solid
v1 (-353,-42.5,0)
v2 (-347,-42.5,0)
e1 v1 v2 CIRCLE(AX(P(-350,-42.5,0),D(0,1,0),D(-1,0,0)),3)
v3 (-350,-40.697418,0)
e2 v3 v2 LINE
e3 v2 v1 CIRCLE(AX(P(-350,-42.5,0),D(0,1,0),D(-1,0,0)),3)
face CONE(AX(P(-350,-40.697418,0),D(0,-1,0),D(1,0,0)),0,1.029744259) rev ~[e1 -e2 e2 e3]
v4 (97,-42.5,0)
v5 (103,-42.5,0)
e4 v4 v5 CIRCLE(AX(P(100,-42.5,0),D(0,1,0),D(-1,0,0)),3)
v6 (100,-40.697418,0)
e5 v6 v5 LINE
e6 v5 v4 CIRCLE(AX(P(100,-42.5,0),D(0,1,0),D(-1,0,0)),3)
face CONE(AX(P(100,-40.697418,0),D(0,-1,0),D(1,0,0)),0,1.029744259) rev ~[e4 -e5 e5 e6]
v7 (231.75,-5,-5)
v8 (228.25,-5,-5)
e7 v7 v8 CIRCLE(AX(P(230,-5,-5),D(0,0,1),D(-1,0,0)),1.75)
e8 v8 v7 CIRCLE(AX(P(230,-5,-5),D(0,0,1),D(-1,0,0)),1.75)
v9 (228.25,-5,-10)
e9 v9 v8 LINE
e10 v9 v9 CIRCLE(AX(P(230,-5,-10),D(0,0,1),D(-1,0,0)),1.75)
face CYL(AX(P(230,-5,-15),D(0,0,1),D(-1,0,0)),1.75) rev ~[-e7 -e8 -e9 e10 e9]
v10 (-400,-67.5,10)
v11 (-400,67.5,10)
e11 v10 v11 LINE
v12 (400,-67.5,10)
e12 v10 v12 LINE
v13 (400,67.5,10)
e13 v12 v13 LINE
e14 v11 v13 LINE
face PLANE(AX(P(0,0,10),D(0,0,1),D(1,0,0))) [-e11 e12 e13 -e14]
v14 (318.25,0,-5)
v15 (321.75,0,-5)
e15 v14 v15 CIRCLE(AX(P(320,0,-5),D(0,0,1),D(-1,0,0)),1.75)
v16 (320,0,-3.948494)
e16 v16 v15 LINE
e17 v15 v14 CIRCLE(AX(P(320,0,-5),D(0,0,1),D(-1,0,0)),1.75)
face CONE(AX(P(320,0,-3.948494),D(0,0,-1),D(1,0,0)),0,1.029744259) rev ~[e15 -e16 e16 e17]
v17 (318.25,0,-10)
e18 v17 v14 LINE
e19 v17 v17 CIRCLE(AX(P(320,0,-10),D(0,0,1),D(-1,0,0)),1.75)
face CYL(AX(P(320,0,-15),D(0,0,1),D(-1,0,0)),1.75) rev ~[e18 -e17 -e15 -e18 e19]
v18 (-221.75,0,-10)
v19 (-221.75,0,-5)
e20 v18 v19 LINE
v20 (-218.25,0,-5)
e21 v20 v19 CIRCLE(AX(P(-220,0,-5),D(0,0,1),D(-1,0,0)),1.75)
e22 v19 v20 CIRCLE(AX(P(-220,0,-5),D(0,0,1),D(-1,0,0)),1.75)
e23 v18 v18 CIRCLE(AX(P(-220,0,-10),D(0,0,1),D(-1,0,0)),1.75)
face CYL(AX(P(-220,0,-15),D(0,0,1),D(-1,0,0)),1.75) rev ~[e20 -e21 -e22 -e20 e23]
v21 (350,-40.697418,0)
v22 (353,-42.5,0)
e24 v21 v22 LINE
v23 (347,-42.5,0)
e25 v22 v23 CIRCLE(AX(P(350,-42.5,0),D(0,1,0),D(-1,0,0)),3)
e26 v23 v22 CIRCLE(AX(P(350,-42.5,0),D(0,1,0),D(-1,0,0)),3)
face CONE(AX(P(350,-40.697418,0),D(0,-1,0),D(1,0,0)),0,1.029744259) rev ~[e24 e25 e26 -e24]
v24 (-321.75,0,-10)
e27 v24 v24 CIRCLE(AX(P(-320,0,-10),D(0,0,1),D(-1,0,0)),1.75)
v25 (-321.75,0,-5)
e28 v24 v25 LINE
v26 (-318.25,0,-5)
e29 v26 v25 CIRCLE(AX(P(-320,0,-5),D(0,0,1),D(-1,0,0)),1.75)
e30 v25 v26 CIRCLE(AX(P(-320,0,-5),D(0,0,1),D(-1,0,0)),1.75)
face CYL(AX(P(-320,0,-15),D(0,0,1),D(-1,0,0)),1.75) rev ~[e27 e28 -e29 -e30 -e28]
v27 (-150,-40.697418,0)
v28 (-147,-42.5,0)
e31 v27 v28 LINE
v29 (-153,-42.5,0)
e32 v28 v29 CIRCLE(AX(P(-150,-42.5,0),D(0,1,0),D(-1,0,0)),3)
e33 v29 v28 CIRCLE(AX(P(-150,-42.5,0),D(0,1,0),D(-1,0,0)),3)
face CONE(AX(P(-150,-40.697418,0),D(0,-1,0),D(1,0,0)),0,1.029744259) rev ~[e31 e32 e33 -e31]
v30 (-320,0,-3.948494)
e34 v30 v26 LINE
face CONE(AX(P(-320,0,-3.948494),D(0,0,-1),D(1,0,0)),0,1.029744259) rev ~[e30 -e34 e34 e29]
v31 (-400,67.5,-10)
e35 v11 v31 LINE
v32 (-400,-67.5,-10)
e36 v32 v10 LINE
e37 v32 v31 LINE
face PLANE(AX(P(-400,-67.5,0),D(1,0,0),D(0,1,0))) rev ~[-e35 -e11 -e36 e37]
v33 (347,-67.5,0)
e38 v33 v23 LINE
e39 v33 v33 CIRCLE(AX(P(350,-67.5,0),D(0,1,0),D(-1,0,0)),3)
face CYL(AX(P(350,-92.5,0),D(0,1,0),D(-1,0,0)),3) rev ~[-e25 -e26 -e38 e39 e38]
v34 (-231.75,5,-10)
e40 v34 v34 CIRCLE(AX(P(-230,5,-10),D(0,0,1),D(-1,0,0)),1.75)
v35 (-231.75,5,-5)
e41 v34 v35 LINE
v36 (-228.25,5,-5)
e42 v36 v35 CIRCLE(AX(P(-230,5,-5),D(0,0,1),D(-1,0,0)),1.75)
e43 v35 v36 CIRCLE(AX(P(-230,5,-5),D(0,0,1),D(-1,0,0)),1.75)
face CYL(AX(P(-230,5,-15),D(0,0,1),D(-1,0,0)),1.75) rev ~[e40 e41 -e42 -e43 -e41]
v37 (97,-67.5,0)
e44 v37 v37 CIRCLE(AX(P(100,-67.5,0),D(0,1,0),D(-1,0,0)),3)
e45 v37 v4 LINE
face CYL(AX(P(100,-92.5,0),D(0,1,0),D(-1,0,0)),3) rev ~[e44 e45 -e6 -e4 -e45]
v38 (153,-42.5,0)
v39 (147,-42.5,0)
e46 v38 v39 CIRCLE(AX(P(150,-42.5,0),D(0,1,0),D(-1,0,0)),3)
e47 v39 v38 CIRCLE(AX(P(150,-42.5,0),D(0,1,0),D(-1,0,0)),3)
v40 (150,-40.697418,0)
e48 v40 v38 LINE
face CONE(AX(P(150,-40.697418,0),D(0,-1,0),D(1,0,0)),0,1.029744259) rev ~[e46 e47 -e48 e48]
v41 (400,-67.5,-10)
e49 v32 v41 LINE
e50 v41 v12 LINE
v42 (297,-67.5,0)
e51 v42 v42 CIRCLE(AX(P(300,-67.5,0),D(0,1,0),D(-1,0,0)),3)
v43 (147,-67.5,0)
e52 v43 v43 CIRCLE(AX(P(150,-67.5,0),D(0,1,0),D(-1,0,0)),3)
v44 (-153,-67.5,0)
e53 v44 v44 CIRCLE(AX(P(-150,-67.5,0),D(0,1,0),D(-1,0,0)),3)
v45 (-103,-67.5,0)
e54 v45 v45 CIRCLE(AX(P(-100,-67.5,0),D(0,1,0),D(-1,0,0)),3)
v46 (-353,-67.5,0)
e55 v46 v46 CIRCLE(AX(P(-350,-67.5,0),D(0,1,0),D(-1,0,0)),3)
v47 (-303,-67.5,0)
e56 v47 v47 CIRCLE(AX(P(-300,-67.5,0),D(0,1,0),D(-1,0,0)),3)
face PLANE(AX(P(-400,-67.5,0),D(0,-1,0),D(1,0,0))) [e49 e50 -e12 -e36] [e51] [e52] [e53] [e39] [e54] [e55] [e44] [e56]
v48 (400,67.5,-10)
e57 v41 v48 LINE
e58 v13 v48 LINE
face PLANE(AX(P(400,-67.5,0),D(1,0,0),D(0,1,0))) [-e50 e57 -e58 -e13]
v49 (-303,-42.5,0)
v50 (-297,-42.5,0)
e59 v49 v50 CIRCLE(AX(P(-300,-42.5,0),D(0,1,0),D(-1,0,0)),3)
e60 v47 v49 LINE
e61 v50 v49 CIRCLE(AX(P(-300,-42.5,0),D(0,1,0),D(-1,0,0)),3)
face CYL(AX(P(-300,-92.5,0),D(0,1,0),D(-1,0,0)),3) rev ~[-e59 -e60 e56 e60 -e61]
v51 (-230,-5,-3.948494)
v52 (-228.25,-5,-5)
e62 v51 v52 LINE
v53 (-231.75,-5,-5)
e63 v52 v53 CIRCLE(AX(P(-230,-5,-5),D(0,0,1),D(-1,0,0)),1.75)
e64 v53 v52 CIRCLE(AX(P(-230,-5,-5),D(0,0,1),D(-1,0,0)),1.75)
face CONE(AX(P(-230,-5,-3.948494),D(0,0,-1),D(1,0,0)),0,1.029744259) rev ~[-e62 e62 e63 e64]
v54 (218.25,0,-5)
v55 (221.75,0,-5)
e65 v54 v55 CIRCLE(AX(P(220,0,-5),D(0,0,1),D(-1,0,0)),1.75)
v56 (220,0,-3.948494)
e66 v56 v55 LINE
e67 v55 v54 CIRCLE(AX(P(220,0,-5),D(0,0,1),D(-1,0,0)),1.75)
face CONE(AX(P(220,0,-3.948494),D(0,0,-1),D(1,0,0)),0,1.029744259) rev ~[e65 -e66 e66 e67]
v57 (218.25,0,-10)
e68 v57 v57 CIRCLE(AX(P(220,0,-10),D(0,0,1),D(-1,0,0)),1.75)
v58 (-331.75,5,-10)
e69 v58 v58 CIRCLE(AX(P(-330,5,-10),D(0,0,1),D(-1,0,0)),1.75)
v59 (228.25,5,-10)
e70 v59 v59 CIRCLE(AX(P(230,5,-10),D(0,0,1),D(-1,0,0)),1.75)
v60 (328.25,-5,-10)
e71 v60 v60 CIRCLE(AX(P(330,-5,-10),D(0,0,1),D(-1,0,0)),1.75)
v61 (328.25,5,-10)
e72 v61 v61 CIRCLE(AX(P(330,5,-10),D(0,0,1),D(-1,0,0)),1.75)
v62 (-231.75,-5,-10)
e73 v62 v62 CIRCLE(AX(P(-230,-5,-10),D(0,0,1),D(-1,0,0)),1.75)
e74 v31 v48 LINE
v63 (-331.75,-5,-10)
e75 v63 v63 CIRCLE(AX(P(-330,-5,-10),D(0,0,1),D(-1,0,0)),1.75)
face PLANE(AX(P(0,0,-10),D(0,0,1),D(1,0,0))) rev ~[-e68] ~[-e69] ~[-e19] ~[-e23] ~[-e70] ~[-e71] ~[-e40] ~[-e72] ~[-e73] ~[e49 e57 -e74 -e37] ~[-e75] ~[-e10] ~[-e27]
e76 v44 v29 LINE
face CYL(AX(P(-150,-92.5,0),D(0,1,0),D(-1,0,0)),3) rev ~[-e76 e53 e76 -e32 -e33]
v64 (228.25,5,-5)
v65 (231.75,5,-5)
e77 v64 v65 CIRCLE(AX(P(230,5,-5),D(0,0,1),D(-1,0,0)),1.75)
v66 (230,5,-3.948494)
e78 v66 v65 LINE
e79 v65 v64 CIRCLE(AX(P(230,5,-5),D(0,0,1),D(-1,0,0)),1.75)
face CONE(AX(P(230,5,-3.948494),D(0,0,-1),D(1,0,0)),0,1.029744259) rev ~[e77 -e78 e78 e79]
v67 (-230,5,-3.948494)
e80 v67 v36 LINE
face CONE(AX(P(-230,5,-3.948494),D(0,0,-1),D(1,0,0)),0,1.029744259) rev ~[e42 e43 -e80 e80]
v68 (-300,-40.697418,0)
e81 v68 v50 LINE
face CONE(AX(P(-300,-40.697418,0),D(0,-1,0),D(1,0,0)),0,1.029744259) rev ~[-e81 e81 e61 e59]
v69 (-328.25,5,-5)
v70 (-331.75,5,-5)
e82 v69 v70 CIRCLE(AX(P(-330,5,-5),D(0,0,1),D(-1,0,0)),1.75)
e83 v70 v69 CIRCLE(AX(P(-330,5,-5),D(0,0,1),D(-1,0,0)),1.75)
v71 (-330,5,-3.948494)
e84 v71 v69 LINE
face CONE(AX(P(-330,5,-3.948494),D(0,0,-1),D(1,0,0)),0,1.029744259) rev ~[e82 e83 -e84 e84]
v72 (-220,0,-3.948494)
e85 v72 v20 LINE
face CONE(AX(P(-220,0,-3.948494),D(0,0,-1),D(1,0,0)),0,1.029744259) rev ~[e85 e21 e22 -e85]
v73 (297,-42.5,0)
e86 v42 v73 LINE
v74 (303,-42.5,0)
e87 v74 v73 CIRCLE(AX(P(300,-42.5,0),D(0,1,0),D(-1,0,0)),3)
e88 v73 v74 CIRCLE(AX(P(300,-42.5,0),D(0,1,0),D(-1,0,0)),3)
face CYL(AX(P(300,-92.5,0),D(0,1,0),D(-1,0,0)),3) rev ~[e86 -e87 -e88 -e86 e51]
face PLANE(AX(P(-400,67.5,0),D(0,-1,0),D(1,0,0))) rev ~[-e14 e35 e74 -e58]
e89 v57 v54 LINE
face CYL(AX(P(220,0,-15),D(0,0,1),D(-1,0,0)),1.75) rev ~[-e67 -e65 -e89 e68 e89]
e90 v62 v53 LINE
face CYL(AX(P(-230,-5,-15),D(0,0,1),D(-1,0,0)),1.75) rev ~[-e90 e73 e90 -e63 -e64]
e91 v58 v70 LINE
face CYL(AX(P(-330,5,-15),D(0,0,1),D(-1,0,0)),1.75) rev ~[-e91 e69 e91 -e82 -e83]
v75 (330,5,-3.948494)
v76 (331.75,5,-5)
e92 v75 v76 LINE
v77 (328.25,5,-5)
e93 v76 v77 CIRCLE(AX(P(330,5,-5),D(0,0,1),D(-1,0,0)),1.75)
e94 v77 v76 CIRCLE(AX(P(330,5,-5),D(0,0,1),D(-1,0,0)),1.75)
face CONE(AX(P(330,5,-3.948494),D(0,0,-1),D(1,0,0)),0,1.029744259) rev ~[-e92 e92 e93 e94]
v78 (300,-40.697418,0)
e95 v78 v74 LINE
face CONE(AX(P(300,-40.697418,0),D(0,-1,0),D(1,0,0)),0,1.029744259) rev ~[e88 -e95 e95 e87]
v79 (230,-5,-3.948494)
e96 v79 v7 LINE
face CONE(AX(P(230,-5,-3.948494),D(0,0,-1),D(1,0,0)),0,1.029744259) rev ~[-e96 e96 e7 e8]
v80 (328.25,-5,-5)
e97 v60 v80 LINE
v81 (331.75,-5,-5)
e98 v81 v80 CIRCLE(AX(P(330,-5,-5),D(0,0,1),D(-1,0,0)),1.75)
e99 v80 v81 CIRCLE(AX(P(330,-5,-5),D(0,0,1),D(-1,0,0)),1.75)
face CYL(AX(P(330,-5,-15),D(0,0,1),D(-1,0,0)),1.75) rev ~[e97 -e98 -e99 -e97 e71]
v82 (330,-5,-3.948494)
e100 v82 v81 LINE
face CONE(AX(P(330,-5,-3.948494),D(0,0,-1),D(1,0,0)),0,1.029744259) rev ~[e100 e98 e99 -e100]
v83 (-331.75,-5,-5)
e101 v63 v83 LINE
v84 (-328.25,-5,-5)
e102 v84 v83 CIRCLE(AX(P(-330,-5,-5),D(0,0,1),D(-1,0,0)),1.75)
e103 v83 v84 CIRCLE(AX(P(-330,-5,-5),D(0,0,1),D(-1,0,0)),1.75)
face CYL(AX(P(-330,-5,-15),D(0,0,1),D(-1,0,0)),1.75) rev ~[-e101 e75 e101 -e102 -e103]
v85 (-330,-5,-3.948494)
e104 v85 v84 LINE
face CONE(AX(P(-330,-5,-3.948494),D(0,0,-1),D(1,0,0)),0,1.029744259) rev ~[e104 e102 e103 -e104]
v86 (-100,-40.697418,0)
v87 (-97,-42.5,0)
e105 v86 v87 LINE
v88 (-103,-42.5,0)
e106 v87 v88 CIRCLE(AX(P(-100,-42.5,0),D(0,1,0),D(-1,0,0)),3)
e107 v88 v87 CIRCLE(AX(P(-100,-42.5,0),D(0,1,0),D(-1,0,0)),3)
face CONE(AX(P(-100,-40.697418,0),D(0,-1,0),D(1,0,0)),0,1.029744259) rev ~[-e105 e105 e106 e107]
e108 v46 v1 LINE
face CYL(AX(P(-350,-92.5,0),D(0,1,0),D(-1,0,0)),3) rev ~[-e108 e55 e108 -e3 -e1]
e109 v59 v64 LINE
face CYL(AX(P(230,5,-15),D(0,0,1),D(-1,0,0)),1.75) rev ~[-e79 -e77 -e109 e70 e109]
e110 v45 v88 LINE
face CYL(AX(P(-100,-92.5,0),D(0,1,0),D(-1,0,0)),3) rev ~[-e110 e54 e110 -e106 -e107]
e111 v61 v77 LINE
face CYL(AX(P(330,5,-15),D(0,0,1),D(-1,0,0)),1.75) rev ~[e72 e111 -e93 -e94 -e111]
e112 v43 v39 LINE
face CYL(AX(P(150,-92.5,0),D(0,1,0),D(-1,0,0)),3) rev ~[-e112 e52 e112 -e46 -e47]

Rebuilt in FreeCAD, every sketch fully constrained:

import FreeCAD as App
import Part
import Sketcher

V = App.Vector
Q = App.Units.Quantity


def add_polygon(sketch, points):
    """Adds a closed chain of lines whose ends are joined by coincident constraints."""
    first, n = sketch.GeometryCount, len(points)
    for a, b in zip(points, points[1:] + points[:1]):
        sketch.addGeometry(Part.LineSegment(App.Vector(*a, 0), App.Vector(*b, 0)), False)
    for i in range(n):
        sketch.addConstraint(Sketcher.Constraint("Coincident", first + i, 2, first + (i + 1) % n, 1))

doc = App.newDocument("Part")
body = doc.addObject("PartDesign::Body", "Body")

# Sketch on XY plane
sketch1 = doc.addObject("Sketcher::SketchObject", "Sketch")
body.addObject(sketch1)
sketch1.AttachmentSupport = (doc.XY_Plane, [""])
sketch1.MapMode = "FlatFace"
add_polygon(sketch1, [(-400, 68), (-400, -68), (400, -68), (400, 68)])  # lines 0-3
sketch1.addConstraint([
    Sketcher.Constraint("Vertical", 0),
    Sketcher.Constraint("Horizontal", 1),
    Sketcher.Constraint("Vertical", 2),
    Sketcher.Constraint("Horizontal", 3),
    Sketcher.Constraint("Symmetric", 0, 2, 2, 2, -1, 1),
    Sketcher.Constraint("DistanceX", 1, 1, 1, 2, Q("800 mm")),
    Sketcher.Constraint("DistanceY", 0, 2, 0, 1, Q("135 mm")),
])
pad1 = doc.addObject("PartDesign::Pad", "Pad")
body.addObject(pad1)
pad1.Profile = sketch1
pad1.Length = 20
pad1.Midplane = True

# Sketch on XZ plane
sketch2 = doc.addObject("Sketcher::SketchObject", "Sketch001")
body.addObject(sketch2)
sketch2.AttachmentSupport = (doc.XZ_Plane, [""])
sketch2.MapMode = "FlatFace"
sketch2.AttachmentOffset = App.Placement(V(0, 0, 67.5), App.Rotation())
sketch2.addGeometry([
    Part.Circle(V(-350, 0, 0), V(0, 0, 1), 3),  # 0
    Part.Circle(V(-300, 0, 0), V(0, 0, 1), 3),  # 1
    Part.Circle(V(-150, 0, 0), V(0, 0, 1), 3),  # 2
    Part.Circle(V(-100, 0, 0), V(0, 0, 1), 3),  # 3
    Part.Circle(V(100, 0, 0), V(0, 0, 1), 3),  # 4
    Part.Circle(V(150, 0, 0), V(0, 0, 1), 3),  # 5
    Part.Circle(V(300, 0, 0), V(0, 0, 1), 3),  # 6
    Part.Circle(V(350, 0, 0), V(0, 0, 1), 3),  # 7
], False)
sketch2.addConstraint([
    Sketcher.Constraint("Equal", 0, 1),
    Sketcher.Constraint("Equal", 1, 2),
    Sketcher.Constraint("Equal", 2, 3),
    Sketcher.Constraint("Equal", 3, 4),
    Sketcher.Constraint("Equal", 4, 5),
    Sketcher.Constraint("Equal", 5, 6),
    Sketcher.Constraint("Equal", 6, 7),
    Sketcher.Constraint("Symmetric", 3, 3, 4, 3, -1, 1),
    Sketcher.Constraint("Symmetric", 2, 3, 5, 3, -1, 1),
    Sketcher.Constraint("Symmetric", 1, 3, 6, 3, -1, 1),
    Sketcher.Constraint("Symmetric", 0, 3, 7, 3, -1, 1),
    Sketcher.Constraint("PointOnObject", 0, 3, -1),
    Sketcher.Constraint("PointOnObject", 1, 3, -1),
    Sketcher.Constraint("PointOnObject", 2, 3, -1),
    Sketcher.Constraint("PointOnObject", 3, 3, -1),
    Sketcher.Constraint("Diameter", 0, Q("6 mm")),
    Sketcher.Constraint("DistanceX", 0, 3, -1, 1, Q("350 mm")),
    Sketcher.Constraint("DistanceX", 1, 3, -1, 1, Q("300 mm")),
    Sketcher.Constraint("DistanceX", 2, 3, -1, 1, Q("150 mm")),
    Sketcher.Constraint("DistanceX", 3, 3, -1, 1, Q("100 mm")),
])
doc.recompute()
hole = doc.addObject("PartDesign::Hole", "Hole")
body.addObject(hole)
hole.Profile = sketch2
hole.ThreadType = "None"
hole.Diameter = 6
hole.DepthType = "Dimension"
hole.Depth = 25
hole.DrillPoint = "Angled"
hole.DrillPointAngle = 118

# Sketch on XY plane
sketch3 = doc.addObject("Sketcher::SketchObject", "Sketch002")
body.addObject(sketch3)
sketch3.AttachmentSupport = (doc.XY_Plane, [""])
sketch3.MapMode = "FlatFace"
sketch3.AttachmentOffset = App.Placement(V(0, 0, -10), App.Rotation())
sketch3.addGeometry([
    Part.Circle(V(-330, -5, 0), V(0, 0, 1), 1.8),  # 0
    Part.Circle(V(-330, 5, 0), V(0, 0, 1), 1.8),  # 1
    Part.Circle(V(-320, 0, 0), V(0, 0, 1), 1.8),  # 2
    Part.Circle(V(-230, -5, 0), V(0, 0, 1), 1.8),  # 3
    Part.Circle(V(-230, 5, 0), V(0, 0, 1), 1.8),  # 4
    Part.Circle(V(-220, 0, 0), V(0, 0, 1), 1.8),  # 5
], False)
sketch3.addConstraint([
    Sketcher.Constraint("Equal", 0, 1),
    Sketcher.Constraint("Equal", 1, 2),
    Sketcher.Constraint("Equal", 2, 3),
    Sketcher.Constraint("Equal", 3, 4),
    Sketcher.Constraint("Equal", 4, 5),
    Sketcher.Constraint("Symmetric", 0, 3, 1, 3, -1),
    Sketcher.Constraint("Symmetric", 3, 3, 4, 3, -1),
    Sketcher.Constraint("PointOnObject", 2, 3, -1),
    Sketcher.Constraint("PointOnObject", 5, 3, -1),
    Sketcher.Constraint("Horizontal", 0, 3, 3, 3),
    Sketcher.Constraint("Diameter", 0, Q("3.5 mm")),
    Sketcher.Constraint("DistanceX", 0, 3, -1, 1, Q("330 mm")),
    Sketcher.Constraint("DistanceY", 0, 3, -1, 1, Q("5 mm")),
    Sketcher.Constraint("DistanceX", 2, 3, -1, 1, Q("320 mm")),
    Sketcher.Constraint("DistanceX", 3, 3, -1, 1, Q("230 mm")),
    Sketcher.Constraint("DistanceX", 5, 3, -1, 1, Q("220 mm")),
])
doc.recompute()
hole2 = doc.addObject("PartDesign::Hole", "Hole001")
body.addObject(hole2)
hole2.Profile = sketch3
hole2.ThreadType = "None"
hole2.Diameter = 3.5
hole2.DepthType = "Dimension"
hole2.Depth = 5
hole2.DrillPoint = "Angled"
hole2.DrillPointAngle = 118
hole2.Reversed = True

# Sketch on XY plane
sketch4 = doc.addObject("Sketcher::SketchObject", "Sketch003")
body.addObject(sketch4)
sketch4.AttachmentSupport = (doc.XY_Plane, [""])
sketch4.MapMode = "FlatFace"
sketch4.AttachmentOffset = App.Placement(V(0, 0, -10), App.Rotation())
sketch4.addGeometry([
    Part.Circle(V(220, 0, 0), V(0, 0, 1), 1.8),  # 0
    Part.Circle(V(230, 5, 0), V(0, 0, 1), 1.8),  # 1
    Part.Circle(V(230, -5, 0), V(0, 0, 1), 1.8),  # 2
    Part.Circle(V(320, 0, 0), V(0, 0, 1), 1.8),  # 3
    Part.Circle(V(330, -5, 0), V(0, 0, 1), 1.8),  # 4
    Part.Circle(V(330, 5, 0), V(0, 0, 1), 1.8),  # 5
], False)
sketch4.addConstraint([
    Sketcher.Constraint("Equal", 0, 1),
    Sketcher.Constraint("Equal", 1, 2),
    Sketcher.Constraint("Equal", 2, 3),
    Sketcher.Constraint("Equal", 3, 4),
    Sketcher.Constraint("Equal", 4, 5),
    Sketcher.Constraint("Symmetric", 1, 3, 2, 3, -1),
    Sketcher.Constraint("Symmetric", 4, 3, 5, 3, -1),
    Sketcher.Constraint("PointOnObject", 0, 3, -1),
    Sketcher.Constraint("PointOnObject", 3, 3, -1),
    Sketcher.Constraint("Horizontal", 2, 3, 4, 3),
    Sketcher.Constraint("Diameter", 0, Q("3.5 mm")),
    Sketcher.Constraint("DistanceX", -1, 1, 0, 3, Q("220 mm")),
    Sketcher.Constraint("DistanceX", -1, 1, 1, 3, Q("230 mm")),
    Sketcher.Constraint("DistanceY", -1, 1, 1, 3, Q("5 mm")),
    Sketcher.Constraint("DistanceX", -1, 1, 3, 3, Q("320 mm")),
    Sketcher.Constraint("DistanceX", -1, 1, 4, 3, Q("330 mm")),
])
doc.recompute()
hole3 = doc.addObject("PartDesign::Hole", "Hole002")
body.addObject(hole3)
hole3.Profile = sketch4
hole3.ThreadType = "None"
hole3.Diameter = 3.5
hole3.DepthType = "Dimension"
hole3.Depth = 5
hole3.DrillPoint = "Angled"
hole3.DrillPointAngle = 118
hole3.Reversed = True

doc.recompute()
